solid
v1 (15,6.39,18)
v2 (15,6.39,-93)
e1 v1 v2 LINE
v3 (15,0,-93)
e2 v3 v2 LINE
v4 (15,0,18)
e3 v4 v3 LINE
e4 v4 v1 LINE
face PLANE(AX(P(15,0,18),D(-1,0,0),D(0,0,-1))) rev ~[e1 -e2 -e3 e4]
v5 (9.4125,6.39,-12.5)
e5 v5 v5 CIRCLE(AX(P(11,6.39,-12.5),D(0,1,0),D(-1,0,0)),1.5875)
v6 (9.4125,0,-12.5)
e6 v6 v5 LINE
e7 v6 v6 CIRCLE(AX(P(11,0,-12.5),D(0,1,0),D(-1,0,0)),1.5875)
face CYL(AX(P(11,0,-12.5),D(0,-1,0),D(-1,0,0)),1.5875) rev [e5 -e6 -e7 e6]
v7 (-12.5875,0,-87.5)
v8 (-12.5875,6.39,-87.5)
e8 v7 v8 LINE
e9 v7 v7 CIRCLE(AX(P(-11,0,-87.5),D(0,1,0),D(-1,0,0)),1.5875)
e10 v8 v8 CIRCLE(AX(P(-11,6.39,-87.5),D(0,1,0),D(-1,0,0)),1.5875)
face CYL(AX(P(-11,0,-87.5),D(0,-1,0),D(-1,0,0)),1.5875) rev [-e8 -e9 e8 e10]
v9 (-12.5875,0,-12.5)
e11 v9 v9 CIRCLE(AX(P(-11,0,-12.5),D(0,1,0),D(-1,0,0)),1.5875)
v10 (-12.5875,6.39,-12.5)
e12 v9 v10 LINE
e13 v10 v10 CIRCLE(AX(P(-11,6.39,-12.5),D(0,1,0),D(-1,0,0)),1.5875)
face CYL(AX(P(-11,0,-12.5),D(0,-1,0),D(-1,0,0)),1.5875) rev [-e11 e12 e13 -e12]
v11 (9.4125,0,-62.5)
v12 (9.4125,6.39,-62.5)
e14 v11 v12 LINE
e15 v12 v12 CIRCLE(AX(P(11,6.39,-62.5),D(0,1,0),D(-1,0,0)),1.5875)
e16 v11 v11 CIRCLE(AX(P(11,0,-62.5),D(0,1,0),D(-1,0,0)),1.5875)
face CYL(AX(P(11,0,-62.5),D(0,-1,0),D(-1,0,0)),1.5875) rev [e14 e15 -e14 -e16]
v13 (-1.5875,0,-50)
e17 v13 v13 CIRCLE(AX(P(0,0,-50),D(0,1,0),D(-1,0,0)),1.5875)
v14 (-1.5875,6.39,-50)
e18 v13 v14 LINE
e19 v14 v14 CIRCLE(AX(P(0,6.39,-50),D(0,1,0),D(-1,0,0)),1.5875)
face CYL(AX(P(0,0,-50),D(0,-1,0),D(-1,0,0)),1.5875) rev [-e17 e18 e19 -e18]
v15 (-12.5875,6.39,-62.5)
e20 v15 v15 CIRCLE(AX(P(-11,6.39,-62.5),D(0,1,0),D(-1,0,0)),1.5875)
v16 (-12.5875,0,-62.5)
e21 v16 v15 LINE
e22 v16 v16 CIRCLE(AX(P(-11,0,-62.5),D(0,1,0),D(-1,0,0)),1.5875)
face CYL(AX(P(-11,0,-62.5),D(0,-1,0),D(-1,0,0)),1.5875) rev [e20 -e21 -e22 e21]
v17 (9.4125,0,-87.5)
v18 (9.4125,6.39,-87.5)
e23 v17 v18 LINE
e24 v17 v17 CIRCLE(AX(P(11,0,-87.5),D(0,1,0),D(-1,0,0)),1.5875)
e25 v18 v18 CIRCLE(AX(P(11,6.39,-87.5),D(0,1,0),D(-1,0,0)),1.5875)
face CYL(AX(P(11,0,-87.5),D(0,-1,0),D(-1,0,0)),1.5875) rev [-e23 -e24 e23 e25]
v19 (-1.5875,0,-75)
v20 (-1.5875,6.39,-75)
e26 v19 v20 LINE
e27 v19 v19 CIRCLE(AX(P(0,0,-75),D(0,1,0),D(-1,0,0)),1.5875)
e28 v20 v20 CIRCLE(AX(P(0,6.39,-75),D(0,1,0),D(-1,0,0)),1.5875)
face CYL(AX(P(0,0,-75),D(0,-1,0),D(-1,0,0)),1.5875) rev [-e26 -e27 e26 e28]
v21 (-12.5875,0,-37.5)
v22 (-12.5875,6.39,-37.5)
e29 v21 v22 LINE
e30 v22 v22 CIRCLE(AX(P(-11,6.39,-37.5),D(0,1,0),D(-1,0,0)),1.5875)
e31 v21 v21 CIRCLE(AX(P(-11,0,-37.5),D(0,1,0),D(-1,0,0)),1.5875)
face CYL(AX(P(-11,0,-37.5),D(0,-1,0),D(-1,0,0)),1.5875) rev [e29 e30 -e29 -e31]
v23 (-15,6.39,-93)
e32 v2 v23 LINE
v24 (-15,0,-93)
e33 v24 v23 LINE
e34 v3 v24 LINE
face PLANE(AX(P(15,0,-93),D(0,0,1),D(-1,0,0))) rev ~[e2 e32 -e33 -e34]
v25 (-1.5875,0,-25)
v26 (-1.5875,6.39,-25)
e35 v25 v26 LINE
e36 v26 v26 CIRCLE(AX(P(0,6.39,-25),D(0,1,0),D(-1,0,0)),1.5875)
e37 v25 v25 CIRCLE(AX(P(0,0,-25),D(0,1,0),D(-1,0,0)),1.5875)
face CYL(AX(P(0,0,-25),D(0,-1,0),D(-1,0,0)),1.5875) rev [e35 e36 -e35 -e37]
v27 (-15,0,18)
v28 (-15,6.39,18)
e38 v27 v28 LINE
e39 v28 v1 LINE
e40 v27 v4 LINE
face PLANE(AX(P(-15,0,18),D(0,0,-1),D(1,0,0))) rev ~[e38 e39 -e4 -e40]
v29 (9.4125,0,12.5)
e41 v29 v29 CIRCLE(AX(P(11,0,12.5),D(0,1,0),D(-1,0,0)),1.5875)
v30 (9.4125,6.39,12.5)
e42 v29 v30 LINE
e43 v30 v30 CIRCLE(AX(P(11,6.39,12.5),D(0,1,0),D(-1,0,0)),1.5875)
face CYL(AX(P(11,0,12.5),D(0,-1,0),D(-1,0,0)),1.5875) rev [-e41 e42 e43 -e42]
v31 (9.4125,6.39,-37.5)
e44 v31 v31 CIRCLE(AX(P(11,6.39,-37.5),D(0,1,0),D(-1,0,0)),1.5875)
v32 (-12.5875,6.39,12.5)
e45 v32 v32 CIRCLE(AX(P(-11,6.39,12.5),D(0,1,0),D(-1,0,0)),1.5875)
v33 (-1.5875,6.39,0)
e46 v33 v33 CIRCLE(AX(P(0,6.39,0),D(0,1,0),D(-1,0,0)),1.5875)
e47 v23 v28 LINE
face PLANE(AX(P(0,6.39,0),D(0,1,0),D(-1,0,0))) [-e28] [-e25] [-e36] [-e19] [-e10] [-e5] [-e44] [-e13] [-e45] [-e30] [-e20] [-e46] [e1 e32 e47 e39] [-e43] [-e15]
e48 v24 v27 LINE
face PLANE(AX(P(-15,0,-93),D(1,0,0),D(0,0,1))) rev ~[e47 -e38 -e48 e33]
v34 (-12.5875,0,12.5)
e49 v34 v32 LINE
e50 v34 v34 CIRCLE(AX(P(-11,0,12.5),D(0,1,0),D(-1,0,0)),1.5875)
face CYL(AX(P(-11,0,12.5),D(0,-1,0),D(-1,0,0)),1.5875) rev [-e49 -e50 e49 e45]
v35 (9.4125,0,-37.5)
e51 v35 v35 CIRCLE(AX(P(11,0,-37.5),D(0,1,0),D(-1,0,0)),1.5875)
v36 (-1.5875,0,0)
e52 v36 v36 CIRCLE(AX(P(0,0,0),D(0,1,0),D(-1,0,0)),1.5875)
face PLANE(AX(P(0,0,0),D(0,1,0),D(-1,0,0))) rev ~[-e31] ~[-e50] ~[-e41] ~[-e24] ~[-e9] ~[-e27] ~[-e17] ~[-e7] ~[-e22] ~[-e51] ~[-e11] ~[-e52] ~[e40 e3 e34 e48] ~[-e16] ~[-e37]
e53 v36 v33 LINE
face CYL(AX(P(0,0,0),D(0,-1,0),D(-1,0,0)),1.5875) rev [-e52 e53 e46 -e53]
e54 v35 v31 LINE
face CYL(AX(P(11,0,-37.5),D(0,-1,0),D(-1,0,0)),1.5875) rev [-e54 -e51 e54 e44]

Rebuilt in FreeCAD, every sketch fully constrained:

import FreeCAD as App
import Part
import Sketcher

V = App.Vector

doc = App.newDocument("Part")
body = doc.addObject("PartDesign::Body", "Body")

sketch1 = body.newObject("Sketcher::SketchObject", "Sketch")
sketch1.AttachmentSupport = (doc.getObject("XZ_Plane"), [""])
sketch1.MapMode = "FlatFace"
sketch1.addGeometry(Part.LineSegment(V(-15, -93, 0), V(-15, 18, 0)), False)
sketch1.addGeometry(Part.LineSegment(V(-15, 18, 0), V(15, 18, 0)), False)
sketch1.addGeometry(Part.LineSegment(V(15, 18, 0), V(15, -93, 0)), False)
sketch1.addGeometry(Part.LineSegment(V(15, -93, 0), V(-15, -93, 0)), False)
sketch1.addGeometry(Part.Circle(V(11, -87.5, 0), V(0, 0, 1), 1.6), False)
sketch1.addGeometry(Part.Circle(V(11, -62.5, 0), V(0, 0, 1), 1.6), False)
sketch1.addGeometry(Part.Circle(V(0, -75, 0), V(0, 0, 1), 1.6), False)
sketch1.addGeometry(Part.Circle(V(-11, -87.5, 0), V(0, 0, 1), 1.6), False)
sketch1.addGeometry(Part.Circle(V(0, -50, 0), V(0, 0, 1), 1.6), False)
sketch1.addGeometry(Part.Circle(V(-11, -62.5, 0), V(0, 0, 1), 1.6), False)
sketch1.addGeometry(Part.Circle(V(11, -37.5, 0), V(0, 0, 1), 1.6), False)
sketch1.addGeometry(Part.Circle(V(11, -12.5, 0), V(0, 0, 1), 1.6), False)
sketch1.addGeometry(Part.Circle(V(11, 12.5, 0), V(0, 0, 1), 1.6), False)
sketch1.addGeometry(Part.Circle(V(0, -25, 0), V(0, 0, 1), 1.6), False)
sketch1.addGeometry(Part.Circle(V(-11, -37.5, 0), V(0, 0, 1), 1.6), False)
sketch1.addGeometry(Part.Circle(V(-11, -12.5, 0), V(0, 0, 1), 1.6), False)
sketch1.addGeometry(Part.Circle(V(0, 0, 0), V(0, 0, 1), 1.6), False)
sketch1.addGeometry(Part.Circle(V(-11, 12.5, 0), V(0, 0, 1), 1.6), False)
sketch1.addConstraint(Sketcher.Constraint("Coincident", 0, 2, 1, 1))
sketch1.addConstraint(Sketcher.Constraint("Coincident", 1, 2, 2, 1))
sketch1.addConstraint(Sketcher.Constraint("Coincident", 2, 2, 3, 1))
sketch1.addConstraint(Sketcher.Constraint("Coincident", 3, 2, 0, 1))
sketch1.addConstraint(Sketcher.Constraint("Vertical", 0))
sketch1.addConstraint(Sketcher.Constraint("Horizontal", 1))
sketch1.addConstraint(Sketcher.Constraint("Vertical", 2))
sketch1.addConstraint(Sketcher.Constraint("Horizontal", 3))
sketch1.addConstraint(Sketcher.Constraint("Coincident", 16, 3, -1, 1))
sketch1.addConstraint(Sketcher.Constraint("Equal", 4, 5))
sketch1.addConstraint(Sketcher.Constraint("Equal", 5, 6))
sketch1.addConstraint(Sketcher.Constraint("Equal", 6, 7))
sketch1.addConstraint(Sketcher.Constraint("Equal", 7, 8))
sketch1.addConstraint(Sketcher.Constraint("Equal", 8, 9))
sketch1.addConstraint(Sketcher.Constraint("Equal", 9, 10))
sketch1.addConstraint(Sketcher.Constraint("Equal", 10, 11))
sketch1.addConstraint(Sketcher.Constraint("Equal", 11, 12))
sketch1.addConstraint(Sketcher.Constraint("Equal", 12, 13))
sketch1.addConstraint(Sketcher.Constraint("Equal", 13, 14))
sketch1.addConstraint(Sketcher.Constraint("Equal", 14, 15))
sketch1.addConstraint(Sketcher.Constraint("Equal", 15, 16))
sketch1.addConstraint(Sketcher.Constraint("Equal", 16, 17))
sketch1.addConstraint(Sketcher.Constraint("Symmetric", 12, 3, 15, 3, -1, 1))
sketch1.addConstraint(Sketcher.Constraint("Symmetric", 11, 3, 17, 3, -1, 1))
sketch1.addConstraint(Sketcher.Constraint("Symmetric", 4, 3, 7, 3, -2))
sketch1.addConstraint(Sketcher.Constraint("Symmetric", 5, 3, 9, 3, -2))
sketch1.addConstraint(Sketcher.Constraint("Symmetric", 10, 3, 14, 3, -2))
sketch1.addConstraint(Sketcher.Constraint("Symmetric", 11, 3, 15, 3, -2))
sketch1.addConstraint(Sketcher.Constraint("PointOnObject", 6, 3, -2))
sketch1.addConstraint(Sketcher.Constraint("PointOnObject", 8, 3, -2))
sketch1.addConstraint(Sketcher.Constraint("PointOnObject", 13, 3, -2))
sketch1.addConstraint(Sketcher.Constraint("Vertical", 4, 3, 5, 3))
sketch1.addConstraint(Sketcher.Constraint("Vertical", 5, 3, 10, 3))
sketch1.addConstraint(Sketcher.Constraint("Vertical", 10, 3, 11, 3))
sketch1.addConstraint(Sketcher.Constraint("Diameter", 4, 3.175))
sketch1.addConstraint(Sketcher.Constraint("DistanceY", 13, 3, -1, 1, 25.0))
sketch1.addConstraint(Sketcher.Constraint("DistanceX", 0, 2, -1, 1, 15.0))
sketch1.addConstraint(Sketcher.Constraint("DistanceY", -1, 1, 0, 2, 18.0))
sketch1.addConstraint(Sketcher.Constraint("DistanceX", -1, 1, 1, 2, 15.0))
sketch1.addConstraint(Sketcher.Constraint("DistanceY", 4, 3, 5, 3, 25.0))
sketch1.addConstraint(Sketcher.Constraint("DistanceY", 6, 3, 8, 3, 25.0))
sketch1.addConstraint(Sketcher.Constraint("DistanceY", 5, 3, 10, 3, 25.0))
sketch1.addConstraint(Sketcher.Constraint("DistanceY", 10, 3, 11, 3, 25.0))
sketch1.addConstraint(Sketcher.Constraint("DistanceY", 11, 3, 12, 3, 25.0))
sketch1.addConstraint(Sketcher.Constraint("DistanceY", 8, 3, 13, 3, 25.0))
sketch1.addConstraint(Sketcher.Constraint("DistanceX", 0, 2, 17, 3, 4.0))
sketch1.addConstraint(Sketcher.Constraint("DistanceY", 2, 2, 6, 3, 18.0))
pad1 = body.newObject("PartDesign::Pad", "Pad")
pad1.Profile = sketch1
pad1.Length = 6.39
pad1.Reversed = True

doc.recompute()
